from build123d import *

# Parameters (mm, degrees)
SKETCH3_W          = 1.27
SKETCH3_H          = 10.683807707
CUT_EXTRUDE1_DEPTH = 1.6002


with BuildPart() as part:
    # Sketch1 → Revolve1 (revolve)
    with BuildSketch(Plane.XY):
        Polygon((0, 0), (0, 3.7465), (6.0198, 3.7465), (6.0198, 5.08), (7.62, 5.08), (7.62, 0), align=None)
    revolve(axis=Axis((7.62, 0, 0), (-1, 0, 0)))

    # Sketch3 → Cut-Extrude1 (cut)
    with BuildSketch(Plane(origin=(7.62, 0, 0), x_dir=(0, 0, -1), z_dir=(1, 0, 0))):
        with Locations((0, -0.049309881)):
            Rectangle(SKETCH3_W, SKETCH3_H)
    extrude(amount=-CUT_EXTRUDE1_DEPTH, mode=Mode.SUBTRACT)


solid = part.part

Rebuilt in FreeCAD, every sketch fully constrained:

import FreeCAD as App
import Part
import Sketcher

V = App.Vector
Q = App.Units.Quantity


def add_polygon(sketch, points):
    """Adds a closed chain of lines whose ends are joined by coincident constraints."""
    first, n = sketch.GeometryCount, len(points)
    for a, b in zip(points, points[1:] + points[:1]):
        sketch.addGeometry(Part.LineSegment(App.Vector(*a, 0), App.Vector(*b, 0)), False)
    for i in range(n):
        sketch.addConstraint(Sketcher.Constraint("Coincident", first + i, 2, first + (i + 1) % n, 1))

doc = App.newDocument("Part")
body = doc.addObject("PartDesign::Body", "Body")

# Sketch on XY plane
sketch1 = body.newObject("Sketcher::SketchObject", "Sketch")
sketch1.AttachmentSupport = (doc.getObject("XY_Plane"), [""])
sketch1.MapMode = "FlatFace"
add_polygon(sketch1, [(0, 3.7), (0, 0), (7.6, 0), (7.6, 5.1), (6, 5.1), (6, 3.7)])  # lines 0-5
sketch1.addConstraint([
    Sketcher.Constraint("Vertical", 0),
    Sketcher.Constraint("Horizontal", 1),
    Sketcher.Constraint("Vertical", 2),
    Sketcher.Constraint("Horizontal", 3),
    Sketcher.Constraint("Vertical", 4),
    Sketcher.Constraint("Horizontal", 5),
    Sketcher.Constraint("Coincident", 0, 2, -1, 1),
    Sketcher.Constraint("DistanceX", 1, 1, 1, 2, Q("0.3 in")),
    Sketcher.Constraint("DistanceY", 2, 1, 2, 2, Q("0.2 in")),
    Sketcher.Constraint("DistanceX", 3, 2, 3, 1, Q("0.063 in")),
    Sketcher.Constraint("DistanceY", 0, 2, 0, 1, Q("0.1475 in")),
])
revolution = body.newObject("PartDesign::Revolution", "Revolution")
revolution.Profile = sketch1
revolution.ReferenceAxis = (sketch1, ["H_Axis"])
revolution.Angle = 360

# Sketch on YZ plane
sketch2 = body.newObject("Sketcher::SketchObject", "Sketch001")
sketch2.AttachmentSupport = (doc.getObject("YZ_Plane"), [""])
sketch2.MapMode = "FlatFace"
sketch2.AttachmentOffset = App.Placement(V(0, 0, 0.3 * 25.4), App.Rotation())
add_polygon(sketch2, [(5.3, 0.6), (-5.4, 0.6), (-5.4, -0.6), (5.3, -0.6)])  # lines 0-3
sketch2.addConstraint([
    Sketcher.Constraint("Horizontal", 0),
    Sketcher.Constraint("Vertical", 1),
    Sketcher.Constraint("Horizontal", 2),
    Sketcher.Constraint("Vertical", 3),
    Sketcher.Constraint("DistanceY", 1, 2, 1, 1, Q("0.05 in")),
    Sketcher.Constraint("DistanceY", -1, 1, 0, 2, Q("0.025 in")),
    Sketcher.Constraint("DistanceX", 0, 2, 0, 1, Q("10.683808 mm")),
    Sketcher.Constraint("DistanceX", 0, 2, -1, 1, Q("5.391214 mm")),
])
pocket1 = body.newObject("PartDesign::Pocket", "Pocket")
pocket1.Profile = sketch2
pocket1.Length = Q("0.063 in")

doc.recompute()
